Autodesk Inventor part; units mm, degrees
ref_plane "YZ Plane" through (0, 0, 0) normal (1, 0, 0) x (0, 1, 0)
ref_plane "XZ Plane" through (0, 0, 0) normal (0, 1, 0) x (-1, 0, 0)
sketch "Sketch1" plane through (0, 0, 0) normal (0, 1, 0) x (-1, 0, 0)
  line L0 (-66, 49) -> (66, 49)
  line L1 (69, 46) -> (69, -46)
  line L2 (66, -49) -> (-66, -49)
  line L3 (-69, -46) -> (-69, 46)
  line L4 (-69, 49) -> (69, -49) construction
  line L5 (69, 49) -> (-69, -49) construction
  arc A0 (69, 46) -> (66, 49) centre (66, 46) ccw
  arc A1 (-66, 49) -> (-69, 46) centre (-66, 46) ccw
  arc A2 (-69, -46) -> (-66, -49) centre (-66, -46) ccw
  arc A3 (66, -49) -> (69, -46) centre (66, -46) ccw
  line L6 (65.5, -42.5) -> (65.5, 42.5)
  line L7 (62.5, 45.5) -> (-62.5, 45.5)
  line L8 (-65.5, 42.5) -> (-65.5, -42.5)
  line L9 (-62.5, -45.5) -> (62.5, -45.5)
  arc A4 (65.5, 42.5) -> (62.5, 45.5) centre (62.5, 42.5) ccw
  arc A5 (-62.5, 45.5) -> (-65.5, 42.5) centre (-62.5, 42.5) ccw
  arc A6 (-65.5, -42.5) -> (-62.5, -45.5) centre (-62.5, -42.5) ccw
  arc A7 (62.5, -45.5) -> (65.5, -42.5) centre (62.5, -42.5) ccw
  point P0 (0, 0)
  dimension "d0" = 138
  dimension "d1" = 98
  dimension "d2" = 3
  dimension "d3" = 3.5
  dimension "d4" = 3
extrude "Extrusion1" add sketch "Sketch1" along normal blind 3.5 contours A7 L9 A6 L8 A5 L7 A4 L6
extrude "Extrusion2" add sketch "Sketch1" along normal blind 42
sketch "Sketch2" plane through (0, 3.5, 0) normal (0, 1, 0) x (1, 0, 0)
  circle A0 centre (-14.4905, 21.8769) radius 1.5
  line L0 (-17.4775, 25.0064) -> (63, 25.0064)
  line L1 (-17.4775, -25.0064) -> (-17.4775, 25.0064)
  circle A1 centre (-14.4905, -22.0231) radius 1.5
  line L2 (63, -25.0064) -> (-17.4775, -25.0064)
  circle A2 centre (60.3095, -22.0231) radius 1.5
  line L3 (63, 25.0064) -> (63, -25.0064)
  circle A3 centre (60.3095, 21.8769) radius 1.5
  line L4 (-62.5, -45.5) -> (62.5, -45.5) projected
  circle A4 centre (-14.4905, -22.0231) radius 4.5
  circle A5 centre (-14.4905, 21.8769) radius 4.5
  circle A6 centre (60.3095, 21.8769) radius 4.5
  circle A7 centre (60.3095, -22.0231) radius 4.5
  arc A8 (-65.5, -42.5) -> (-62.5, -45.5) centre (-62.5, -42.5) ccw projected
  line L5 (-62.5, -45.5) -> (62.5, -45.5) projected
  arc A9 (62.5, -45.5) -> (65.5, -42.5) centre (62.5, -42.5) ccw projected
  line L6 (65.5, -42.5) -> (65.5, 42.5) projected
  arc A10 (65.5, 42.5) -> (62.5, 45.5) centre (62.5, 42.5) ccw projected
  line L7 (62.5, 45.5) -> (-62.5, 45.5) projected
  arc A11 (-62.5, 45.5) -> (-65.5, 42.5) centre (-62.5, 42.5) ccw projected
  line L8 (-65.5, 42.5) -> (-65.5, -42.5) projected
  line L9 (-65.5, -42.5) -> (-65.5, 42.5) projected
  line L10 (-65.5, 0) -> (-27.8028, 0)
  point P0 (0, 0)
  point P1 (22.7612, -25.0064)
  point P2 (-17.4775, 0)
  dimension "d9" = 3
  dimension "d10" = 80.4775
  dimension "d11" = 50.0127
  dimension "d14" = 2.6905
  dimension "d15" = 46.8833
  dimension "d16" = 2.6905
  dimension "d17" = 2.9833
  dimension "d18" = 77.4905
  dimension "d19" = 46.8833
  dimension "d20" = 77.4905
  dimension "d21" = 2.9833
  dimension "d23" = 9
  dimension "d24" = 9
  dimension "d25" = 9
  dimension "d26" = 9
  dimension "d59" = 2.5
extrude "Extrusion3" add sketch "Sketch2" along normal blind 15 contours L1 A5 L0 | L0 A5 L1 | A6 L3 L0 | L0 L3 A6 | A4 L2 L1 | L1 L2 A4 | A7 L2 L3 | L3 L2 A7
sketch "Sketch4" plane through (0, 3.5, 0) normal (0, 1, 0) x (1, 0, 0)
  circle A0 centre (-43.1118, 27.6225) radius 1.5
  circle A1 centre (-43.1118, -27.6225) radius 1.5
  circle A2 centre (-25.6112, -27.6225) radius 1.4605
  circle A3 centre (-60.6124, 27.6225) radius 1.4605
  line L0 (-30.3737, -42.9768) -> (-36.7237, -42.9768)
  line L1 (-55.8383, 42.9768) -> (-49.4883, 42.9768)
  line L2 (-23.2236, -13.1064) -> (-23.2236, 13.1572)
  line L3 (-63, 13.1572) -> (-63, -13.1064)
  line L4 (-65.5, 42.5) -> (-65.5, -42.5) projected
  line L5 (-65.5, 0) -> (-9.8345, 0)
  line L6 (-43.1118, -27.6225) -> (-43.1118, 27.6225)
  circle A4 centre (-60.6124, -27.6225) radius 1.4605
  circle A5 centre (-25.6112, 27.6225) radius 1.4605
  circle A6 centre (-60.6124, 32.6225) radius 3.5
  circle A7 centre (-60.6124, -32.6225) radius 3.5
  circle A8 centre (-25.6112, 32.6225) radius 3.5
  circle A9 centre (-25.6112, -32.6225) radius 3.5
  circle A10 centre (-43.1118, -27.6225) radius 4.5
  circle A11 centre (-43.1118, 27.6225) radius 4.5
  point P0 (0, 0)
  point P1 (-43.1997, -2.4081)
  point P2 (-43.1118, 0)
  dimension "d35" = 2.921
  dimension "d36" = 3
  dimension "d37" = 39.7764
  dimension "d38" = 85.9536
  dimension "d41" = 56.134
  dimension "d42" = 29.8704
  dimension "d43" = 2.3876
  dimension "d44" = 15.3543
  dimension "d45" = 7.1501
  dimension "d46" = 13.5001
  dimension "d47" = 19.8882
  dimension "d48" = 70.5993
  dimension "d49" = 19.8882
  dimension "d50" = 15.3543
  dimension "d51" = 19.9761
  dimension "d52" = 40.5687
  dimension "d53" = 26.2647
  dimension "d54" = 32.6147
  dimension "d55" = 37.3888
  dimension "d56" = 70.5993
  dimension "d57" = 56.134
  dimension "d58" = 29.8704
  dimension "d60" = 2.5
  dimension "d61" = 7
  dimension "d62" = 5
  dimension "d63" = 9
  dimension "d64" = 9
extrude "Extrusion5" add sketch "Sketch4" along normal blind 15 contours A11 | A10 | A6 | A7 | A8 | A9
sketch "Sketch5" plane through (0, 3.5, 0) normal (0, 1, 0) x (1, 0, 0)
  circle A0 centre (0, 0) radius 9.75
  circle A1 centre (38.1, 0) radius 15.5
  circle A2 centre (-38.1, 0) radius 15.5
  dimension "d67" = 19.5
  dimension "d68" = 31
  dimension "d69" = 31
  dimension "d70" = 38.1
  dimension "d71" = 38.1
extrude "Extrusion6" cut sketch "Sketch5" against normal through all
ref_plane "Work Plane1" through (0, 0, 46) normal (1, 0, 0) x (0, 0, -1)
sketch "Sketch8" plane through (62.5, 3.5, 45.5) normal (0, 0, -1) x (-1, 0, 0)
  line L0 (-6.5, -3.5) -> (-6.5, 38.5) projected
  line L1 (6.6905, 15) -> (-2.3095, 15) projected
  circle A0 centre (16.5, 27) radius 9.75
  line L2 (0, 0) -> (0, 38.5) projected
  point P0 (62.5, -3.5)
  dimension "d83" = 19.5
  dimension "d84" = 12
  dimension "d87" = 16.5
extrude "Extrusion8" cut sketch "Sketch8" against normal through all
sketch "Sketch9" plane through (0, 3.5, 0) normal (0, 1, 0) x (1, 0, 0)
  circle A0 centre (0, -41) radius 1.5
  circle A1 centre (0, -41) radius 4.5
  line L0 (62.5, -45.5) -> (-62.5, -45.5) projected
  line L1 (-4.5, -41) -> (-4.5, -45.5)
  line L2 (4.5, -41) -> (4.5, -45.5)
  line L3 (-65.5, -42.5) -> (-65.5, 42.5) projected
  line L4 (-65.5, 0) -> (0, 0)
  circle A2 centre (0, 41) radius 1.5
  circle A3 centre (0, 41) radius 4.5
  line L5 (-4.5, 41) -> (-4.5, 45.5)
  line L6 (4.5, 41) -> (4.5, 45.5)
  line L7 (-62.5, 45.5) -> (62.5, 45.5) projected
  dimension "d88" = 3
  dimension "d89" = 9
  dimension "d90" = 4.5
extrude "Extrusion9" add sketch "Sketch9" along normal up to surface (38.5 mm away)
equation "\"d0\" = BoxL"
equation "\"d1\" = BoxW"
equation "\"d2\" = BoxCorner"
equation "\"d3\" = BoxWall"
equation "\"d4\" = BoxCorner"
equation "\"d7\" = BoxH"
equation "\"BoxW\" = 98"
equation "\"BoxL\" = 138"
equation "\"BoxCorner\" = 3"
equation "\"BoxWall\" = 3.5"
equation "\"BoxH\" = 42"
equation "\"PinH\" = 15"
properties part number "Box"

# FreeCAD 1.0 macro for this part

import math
import FreeCAD as App
import Part
import Sketcher
from FreeCAD import Vector

doc = App.newDocument("Part")
body = doc.addObject("PartDesign::Body", "Body")

sketch1 = doc.addObject("Sketcher::SketchObject", "Sketch")
body.addObject(sketch1)
sketch1.AttachmentSupport = (doc.XZ_Plane, [""])
sketch1.MapMode = "FlatFace"
sketch1.addGeometry(Part.ArcOfCircle(Part.Circle(Vector(-62.5, -42.5, 0), Vector(0, 0, 1), 3), math.radians(180), math.radians(270)), False)
sketch1.addGeometry(Part.LineSegment(Vector(-65.5, -42.5, 0), Vector(-65.5, 42.5, 0)), False)
sketch1.addGeometry(Part.ArcOfCircle(Part.Circle(Vector(-62.5, 42.5, 0), Vector(0, 0, 1), 3), math.radians(90), math.radians(180)), False)
sketch1.addGeometry(Part.LineSegment(Vector(-62.5, 45.5, 0), Vector(62.5, 45.5, 0)), False)
sketch1.addGeometry(Part.ArcOfCircle(Part.Circle(Vector(62.5, 42.5, 0), Vector(0, 0, 1), 3), math.radians(0), math.radians(90)), False)
sketch1.addGeometry(Part.LineSegment(Vector(65.5, 42.5, 0), Vector(65.5, -42.5, 0)), False)
sketch1.addGeometry(Part.ArcOfCircle(Part.Circle(Vector(62.5, -42.5, 0), Vector(0, 0, 1), 3), math.radians(-90), math.radians(0)), False)
sketch1.addGeometry(Part.LineSegment(Vector(62.5, -45.5, 0), Vector(-62.5, -45.5, 0)), False)
sketch1.addConstraint(Sketcher.Constraint("Tangent", 0, 1, 1, 1))
sketch1.addConstraint(Sketcher.Constraint("Tangent", 1, 2, 2, 2))
sketch1.addConstraint(Sketcher.Constraint("Tangent", 2, 1, 3, 1))
sketch1.addConstraint(Sketcher.Constraint("Tangent", 3, 2, 4, 2))
sketch1.addConstraint(Sketcher.Constraint("Tangent", 4, 1, 5, 1))
sketch1.addConstraint(Sketcher.Constraint("Tangent", 5, 2, 6, 2))
sketch1.addConstraint(Sketcher.Constraint("Tangent", 6, 1, 7, 1))
sketch1.addConstraint(Sketcher.Constraint("Tangent", 7, 2, 0, 2))
sketch1.addConstraint(Sketcher.Constraint("Vertical", 1))
sketch1.addConstraint(Sketcher.Constraint("Horizontal", 3))
sketch1.addConstraint(Sketcher.Constraint("Vertical", 5))
sketch1.addConstraint(Sketcher.Constraint("Horizontal", 7))
sketch1.addConstraint(Sketcher.Constraint("Equal", 0, 2))
sketch1.addConstraint(Sketcher.Constraint("Equal", 2, 4))
sketch1.addConstraint(Sketcher.Constraint("Equal", 4, 6))
sketch1.addConstraint(Sketcher.Constraint("Symmetric", 0, 3, 4, 3, -1, 1))
sketch1.addConstraint(Sketcher.Constraint("Radius", 0, 3.0))
sketch1.addConstraint(Sketcher.Constraint("DistanceX", 3, 1, 3, 2, 125.0))
sketch1.addConstraint(Sketcher.Constraint("DistanceY", 1, 1, 1, 2, 85.0))
pad1 = doc.addObject("PartDesign::Pad", "Pad")
body.addObject(pad1)
pad1.Profile = sketch1
pad1.Length = 3.5
pad1.Reversed = True

sketch2 = doc.addObject("Sketcher::SketchObject", "Sketch001")
body.addObject(sketch2)
sketch2.AttachmentSupport = (doc.XZ_Plane, [""])
sketch2.MapMode = "FlatFace"
sketch2.addGeometry(Part.LineSegment(Vector(-66, 49, 0), Vector(66, 49, 0)), False)
sketch2.addGeometry(Part.ArcOfCircle(Part.Circle(Vector(66, 46, 0), Vector(0, 0, 1), 3), math.radians(0), math.radians(90)), False)
sketch2.addGeometry(Part.LineSegment(Vector(69, 46, 0), Vector(69, -46, 0)), False)
sketch2.addGeometry(Part.ArcOfCircle(Part.Circle(Vector(66, -46, 0), Vector(0, 0, 1), 3), math.radians(-90), math.radians(0)), False)
sketch2.addGeometry(Part.LineSegment(Vector(66, -49, 0), Vector(-66, -49, 0)), False)
sketch2.addGeometry(Part.ArcOfCircle(Part.Circle(Vector(-66, -46, 0), Vector(0, 0, 1), 3), math.radians(180), math.radians(270)), False)
sketch2.addGeometry(Part.LineSegment(Vector(-69, -46, 0), Vector(-69, 46, 0)), False)
sketch2.addGeometry(Part.ArcOfCircle(Part.Circle(Vector(-66, 46, 0), Vector(0, 0, 1), 3), math.radians(90), math.radians(180)), False)
sketch2.addGeometry(Part.LineSegment(Vector(-65.5, 42.5, 0), Vector(-65.5, -42.5, 0)), False)
sketch2.addGeometry(Part.ArcOfCircle(Part.Circle(Vector(-62.5, -42.5, 0), Vector(0, 0, 1), 3), math.radians(180), math.radians(270)), False)
sketch2.addGeometry(Part.LineSegment(Vector(-62.5, -45.5, 0), Vector(62.5, -45.5, 0)), False)
sketch2.addGeometry(Part.ArcOfCircle(Part.Circle(Vector(62.5, -42.5, 0), Vector(0, 0, 1), 3), math.radians(-90), math.radians(0)), False)
sketch2.addGeometry(Part.LineSegment(Vector(65.5, -42.5, 0), Vector(65.5, 42.5, 0)), False)
sketch2.addGeometry(Part.ArcOfCircle(Part.Circle(Vector(62.5, 42.5, 0), Vector(0, 0, 1), 3), math.radians(0), math.radians(90)), False)
sketch2.addGeometry(Part.LineSegment(Vector(62.5, 45.5, 0), Vector(-62.5, 45.5, 0)), False)
sketch2.addGeometry(Part.ArcOfCircle(Part.Circle(Vector(-62.5, 42.5, 0), Vector(0, 0, 1), 3), math.radians(90), math.radians(180)), False)
sketch2.addConstraint(Sketcher.Constraint("Tangent", 0, 2, 1, 2))
sketch2.addConstraint(Sketcher.Constraint("Tangent", 1, 1, 2, 1))
sketch2.addConstraint(Sketcher.Constraint("Tangent", 2, 2, 3, 2))
sketch2.addConstraint(Sketcher.Constraint("Tangent", 3, 1, 4, 1))
sketch2.addConstraint(Sketcher.Constraint("Tangent", 4, 2, 5, 2))
sketch2.addConstraint(Sketcher.Constraint("Tangent", 5, 1, 6, 1))
sketch2.addConstraint(Sketcher.Constraint("Tangent", 6, 2, 7, 2))
sketch2.addConstraint(Sketcher.Constraint("Tangent", 7, 1, 0, 1))
sketch2.addConstraint(Sketcher.Constraint("Tangent", 8, 2, 9, 1))
sketch2.addConstraint(Sketcher.Constraint("Tangent", 9, 2, 10, 1))
sketch2.addConstraint(Sketcher.Constraint("Tangent", 10, 2, 11, 1))
sketch2.addConstraint(Sketcher.Constraint("Tangent", 11, 2, 12, 1))
sketch2.addConstraint(Sketcher.Constraint("Tangent", 12, 2, 13, 1))
sketch2.addConstraint(Sketcher.Constraint("Tangent", 13, 2, 14, 1))
sketch2.addConstraint(Sketcher.Constraint("Tangent", 14, 2, 15, 1))
sketch2.addConstraint(Sketcher.Constraint("Tangent", 15, 2, 8, 1))
sketch2.addConstraint(Sketcher.Constraint("Horizontal", 0))
sketch2.addConstraint(Sketcher.Constraint("Vertical", 2))
sketch2.addConstraint(Sketcher.Constraint("Horizontal", 4))
sketch2.addConstraint(Sketcher.Constraint("Vertical", 6))
sketch2.addConstraint(Sketcher.Constraint("Vertical", 8))
sketch2.addConstraint(Sketcher.Constraint("Horizontal", 10))
sketch2.addConstraint(Sketcher.Constraint("Vertical", 12))
sketch2.addConstraint(Sketcher.Constraint("Horizontal", 14))
sketch2.addConstraint(Sketcher.Constraint("Equal", 1, 3))
sketch2.addConstraint(Sketcher.Constraint("Equal", 3, 5))
sketch2.addConstraint(Sketcher.Constraint("Equal", 5, 7))
sketch2.addConstraint(Sketcher.Constraint("Equal", 7, 9))
sketch2.addConstraint(Sketcher.Constraint("Equal", 9, 11))
sketch2.addConstraint(Sketcher.Constraint("Equal", 11, 13))
sketch2.addConstraint(Sketcher.Constraint("Equal", 13, 15))
sketch2.addConstraint(Sketcher.Constraint("Symmetric", 1, 3, 5, 3, -1, 1))
sketch2.addConstraint(Sketcher.Constraint("Symmetric", 9, 3, 13, 3, -1, 1))
sketch2.addConstraint(Sketcher.Constraint("Radius", 1, 3.0))
sketch2.addConstraint(Sketcher.Constraint("DistanceX", 5, 3, 9, 3, 3.5))
sketch2.addConstraint(Sketcher.Constraint("DistanceY", 5, 3, 9, 3, 3.5))
sketch2.addConstraint(Sketcher.Constraint("DistanceX", 0, 1, 0, 2, 132.0))
sketch2.addConstraint(Sketcher.Constraint("DistanceY", 2, 2, 2, 1, 92.0))
pad2 = doc.addObject("PartDesign::Pad", "Pad001")
body.addObject(pad2)
pad2.Profile = sketch2
pad2.Length = 42
pad2.Reversed = True

sketch3 = doc.addObject("Sketcher::SketchObject", "Sketch002")
body.addObject(sketch3)
sketch3.AttachmentSupport = (doc.XZ_Plane, [""])
sketch3.MapMode = "FlatFace"
sketch3.AttachmentOffset = App.Placement(Vector(0, 0, -3.5), App.Rotation())
sketch3.addGeometry(Part.Circle(Vector(-14.4905, -21.8769, 0), Vector(0, 0, 1), 4.5), False)
sketch3.addGeometry(Part.Circle(Vector(-14.4905, -21.8769, 0), Vector(0, 0, 1), 1.5), False)
sketch3.addGeometry(Part.Circle(Vector(60.3095, -21.8769, 0), Vector(0, 0, 1), 4.5), False)
sketch3.addGeometry(Part.Circle(Vector(60.3095, -21.8769, 0), Vector(0, 0, 1), 1.5), False)
sketch3.addGeometry(Part.Circle(Vector(-14.4905, 22.0231, 0), Vector(0, 0, 1), 4.5), False)
sketch3.addGeometry(Part.Circle(Vector(-14.4905, 22.0231, 0), Vector(0, 0, 1), 1.5), False)
sketch3.addGeometry(Part.Circle(Vector(60.3095, 22.0231, 0), Vector(0, 0, 1), 4.5), False)
sketch3.addGeometry(Part.Circle(Vector(60.3095, 22.0231, 0), Vector(0, 0, 1), 1.5), False)
sketch3.addConstraint(Sketcher.Constraint("Coincident", 1, 3, 0, 3))
sketch3.addConstraint(Sketcher.Constraint("Coincident", 3, 3, 2, 3))
sketch3.addConstraint(Sketcher.Constraint("Coincident", 5, 3, 4, 3))
sketch3.addConstraint(Sketcher.Constraint("Coincident", 7, 3, 6, 3))
sketch3.addConstraint(Sketcher.Constraint("Equal", 0, 2))
sketch3.addConstraint(Sketcher.Constraint("Equal", 1, 3))
sketch3.addConstraint(Sketcher.Constraint("Equal", 2, 4))
sketch3.addConstraint(Sketcher.Constraint("Equal", 3, 5))
sketch3.addConstraint(Sketcher.Constraint("Equal", 4, 6))
sketch3.addConstraint(Sketcher.Constraint("Equal", 5, 7))
sketch3.addConstraint(Sketcher.Constraint("Horizontal", 1, 3, 2, 3))
sketch3.addConstraint(Sketcher.Constraint("Horizontal", 5, 3, 6, 3))
sketch3.addConstraint(Sketcher.Constraint("Vertical", 1, 3, 4, 3))
sketch3.addConstraint(Sketcher.Constraint("Vertical", 3, 3, 6, 3))
sketch3.addConstraint(Sketcher.Constraint("Diameter", 0, 9.0))
sketch3.addConstraint(Sketcher.Constraint("Diameter", 1, 3.0))
sketch3.addConstraint(Sketcher.Constraint("DistanceX", 0, 3, 2, 3, 74.8))
sketch3.addConstraint(Sketcher.Constraint("DistanceY", 0, 3, 4, 3, 43.9))
sketch3.addConstraint(Sketcher.Constraint("DistanceY", 0, 3, -1, 1, 21.877))
sketch3.addConstraint(Sketcher.Constraint("DistanceX", 0, 3, -1, 1, 14.4905))
pad3 = doc.addObject("PartDesign::Pad", "Pad002")
body.addObject(pad3)
pad3.Profile = sketch3
pad3.Length = 15
pad3.Reversed = True

sketch4 = doc.addObject("Sketcher::SketchObject", "Sketch003")
body.addObject(sketch4)
sketch4.AttachmentSupport = (doc.XZ_Plane, [""])
sketch4.MapMode = "FlatFace"
sketch4.AttachmentOffset = App.Placement(Vector(0, 0, -3.5), App.Rotation())
sketch4.addGeometry(Part.Circle(Vector(-43.1118, -27.6225, 0), Vector(0, 0, 1), 4.5), False)
sketch4.addGeometry(Part.Circle(Vector(-43.1118, -27.6225, 0), Vector(0, 0, 1), 1.5), False)
sketch4.addGeometry(Part.Circle(Vector(-43.1118, 27.6225, 0), Vector(0, 0, 1), 4.5), False)
sketch4.addGeometry(Part.Circle(Vector(-43.1118, 27.6225, 0), Vector(0, 0, 1), 1.5), False)
sketch4.addGeometry(Part.Circle(Vector(-60.6124, -32.6225, 0), Vector(0, 0, 1), 3.5), False)
sketch4.addGeometry(Part.Circle(Vector(-60.6124, 32.6225, 0), Vector(0, 0, 1), 3.5), False)
sketch4.addGeometry(Part.Circle(Vector(-25.6112, -32.6225, 0), Vector(0, 0, 1), 3.5), False)
sketch4.addGeometry(Part.Circle(Vector(-25.6112, 32.6225, 0), Vector(0, 0, 1), 3.5), False)
sketch4.addConstraint(Sketcher.Constraint("Coincident", 1, 3, 0, 3))
sketch4.addConstraint(Sketcher.Constraint("Coincident", 3, 3, 2, 3))
sketch4.addConstraint(Sketcher.Constraint("Equal", 0, 2))
sketch4.addConstraint(Sketcher.Constraint("Equal", 1, 3))
sketch4.addConstraint(Sketcher.Constraint("Equal", 4, 5))
sketch4.addConstraint(Sketcher.Constraint("Equal", 5, 6))
sketch4.addConstraint(Sketcher.Constraint("Equal", 6, 7))
sketch4.addConstraint(Sketcher.Constraint("Symmetric", 0, 3, 2, 3, -1))
sketch4.addConstraint(Sketcher.Constraint("Symmetric", 4, 3, 5, 3, -1))
sketch4.addConstraint(Sketcher.Constraint("Symmetric", 6, 3, 7, 3, -1))
sketch4.addConstraint(Sketcher.Constraint("Horizontal", 4, 3, 6, 3))
sketch4.addConstraint(Sketcher.Constraint("Diameter", 0, 9.0))
sketch4.addConstraint(Sketcher.Constraint("Diameter", 1, 3.0))
sketch4.addConstraint(Sketcher.Constraint("Diameter", 4, 7.0))
sketch4.addConstraint(Sketcher.Constraint("DistanceY", 4, 3, 0, 3, 5.0))
sketch4.addConstraint(Sketcher.Constraint("DistanceY", 0, 3, 2, 3, 55.245))
sketch4.addConstraint(Sketcher.Constraint("DistanceX", 0, 3, -1, 1, 43.1118))
sketch4.addConstraint(Sketcher.Constraint("DistanceX", 4, 3, -1, 1, 60.6124))
sketch4.addConstraint(Sketcher.Constraint("DistanceX", 6, 3, -1, 1, 25.6112))
pad4 = doc.addObject("PartDesign::Pad", "Pad003")
body.addObject(pad4)
pad4.Profile = sketch4
pad4.Length = 15
pad4.Reversed = True

sketch5 = doc.addObject("Sketcher::SketchObject", "Sketch004")
body.addObject(sketch5)
sketch5.AttachmentSupport = (doc.XZ_Plane, [""])
sketch5.MapMode = "FlatFace"
sketch5.AttachmentOffset = App.Placement(Vector(0, 0, -3.5), App.Rotation())
sketch5.addGeometry(Part.Circle(Vector(0, 0, 0), Vector(0, 0, 1), 9.75), False)
sketch5.addGeometry(Part.Circle(Vector(38.1, 0, 0), Vector(0, 0, 1), 15.5), False)
sketch5.addGeometry(Part.Circle(Vector(-38.1, 0, 0), Vector(0, 0, 1), 15.5), False)
sketch5.addConstraint(Sketcher.Constraint("Coincident", 0, 3, -1, 1))
sketch5.addConstraint(Sketcher.Constraint("Equal", 1, 2))
sketch5.addConstraint(Sketcher.Constraint("Symmetric", 1, 3, 2, 3, -1, 1))
sketch5.addConstraint(Sketcher.Constraint("PointOnObject", 1, 3, -1))
sketch5.addConstraint(Sketcher.Constraint("Diameter", 1, 31.0))
sketch5.addConstraint(Sketcher.Constraint("Diameter", 0, 19.5))
sketch5.addConstraint(Sketcher.Constraint("DistanceX", -1, 1, 1, 3, 38.1))
pocket1 = doc.addObject("PartDesign::Pocket", "Pocket")
body.addObject(pocket1)
pocket1.Profile = sketch5
pocket1.Type = "ThroughAll"
pocket1.Reversed = True

sketch6 = doc.addObject("Sketcher::SketchObject", "Sketch005")
body.addObject(sketch6)
sketch6.AttachmentSupport = (doc.XY_Plane, [""])
sketch6.MapMode = "FlatFace"
sketch6.AttachmentOffset = App.Placement(Vector(0, 0, 45.5), App.Rotation())
sketch6.addGeometry(Part.Circle(Vector(46, 30.5, 0), Vector(0, 0, 1), 9.75), False)
sketch6.addConstraint(Sketcher.Constraint("Diameter", 0, 19.5))
sketch6.addConstraint(Sketcher.Constraint("DistanceX", -1, 1, 0, 3, 46.0))
sketch6.addConstraint(Sketcher.Constraint("DistanceY", -1, 1, 0, 3, 30.5))
pocket2 = doc.addObject("PartDesign::Pocket", "Pocket001")
body.addObject(pocket2)
pocket2.Profile = sketch6
pocket2.Type = "ThroughAll"
pocket2.Reversed = True

sketch7 = doc.addObject("Sketcher::SketchObject", "Sketch006")
body.addObject(sketch7)
sketch7.AttachmentSupport = (doc.XZ_Plane, [""])
sketch7.MapMode = "FlatFace"
sketch7.AttachmentOffset = App.Placement(Vector(0, 0, -3.5), App.Rotation())
sketch7.addGeometry(Part.ArcOfCircle(Part.Circle(Vector(0, 41, 0), Vector(0, 0, 1), 4.5), math.radians(180), math.radians(360)), False)
sketch7.addGeometry(Part.LineSegment(Vector(-4.5, 41, 0), Vector(-4.5, 45.5, 0)), False)
sketch7.addGeometry(Part.LineSegment(Vector(-4.5, 45.5, 0), Vector(4.5, 45.5, 0)), False)
sketch7.addGeometry(Part.LineSegment(Vector(4.5, 45.5, 0), Vector(4.5, 41, 0)), False)
sketch7.addGeometry(Part.Circle(Vector(0, 41, 0), Vector(0, 0, 1), 1.5), False)
sketch7.addGeometry(Part.ArcOfCircle(Part.Circle(Vector(0, -41, 0), Vector(0, 0, 1), 4.5), math.radians(0), math.radians(180)), False)
sketch7.addGeometry(Part.LineSegment(Vector(4.5, -41, 0), Vector(4.5, -45.5, 0)), False)
sketch7.addGeometry(Part.LineSegment(Vector(4.5, -45.5, 0), Vector(-4.5, -45.5, 0)), False)
sketch7.addGeometry(Part.LineSegment(Vector(-4.5, -45.5, 0), Vector(-4.5, -41, 0)), False)
sketch7.addGeometry(Part.Circle(Vector(0, -41, 0), Vector(0, 0, 1), 1.5), False)
sketch7.addConstraint(Sketcher.Constraint("Tangent", 0, 1, 1, 1))
sketch7.addConstraint(Sketcher.Constraint("Coincident", 1, 2, 2, 1))
sketch7.addConstraint(Sketcher.Constraint("Coincident", 2, 2, 3, 1))
sketch7.addConstraint(Sketcher.Constraint("Tangent", 3, 2, 0, 2))
sketch7.addConstraint(Sketcher.Constraint("Tangent", 5, 1, 6, 1))
sketch7.addConstraint(Sketcher.Constraint("Coincident", 6, 2, 7, 1))
sketch7.addConstraint(Sketcher.Constraint("Coincident", 7, 2, 8, 1))
sketch7.addConstraint(Sketcher.Constraint("Tangent", 8, 2, 5, 2))
sketch7.addConstraint(Sketcher.Constraint("Vertical", 1))
sketch7.addConstraint(Sketcher.Constraint("Horizontal", 2))
sketch7.addConstraint(Sketcher.Constraint("Vertical", 3))
sketch7.addConstraint(Sketcher.Constraint("Vertical", 6))
sketch7.addConstraint(Sketcher.Constraint("Horizontal", 7))
sketch7.addConstraint(Sketcher.Constraint("Vertical", 8))
sketch7.addConstraint(Sketcher.Constraint("Coincident", 4, 3, 0, 3))
sketch7.addConstraint(Sketcher.Constraint("Coincident", 9, 3, 5, 3))
sketch7.addConstraint(Sketcher.Constraint("Equal", 0, 5))
sketch7.addConstraint(Sketcher.Constraint("Equal", 4, 9))
sketch7.addConstraint(Sketcher.Constraint("Symmetric", 0, 3, 5, 3, -1, 1))
sketch7.addConstraint(Sketcher.Constraint("Symmetric", 2, 2, 6, 2, -1))
sketch7.addConstraint(Sketcher.Constraint("Diameter", 4, 3.0))
sketch7.addConstraint(Sketcher.Constraint("Radius", 0, 4.5))
sketch7.addConstraint(Sketcher.Constraint("DistanceY", 1, 1, 1, 2, 4.5))
sketch7.addConstraint(Sketcher.Constraint("DistanceY", -1, 1, 0, 3, 41.0))
pad5 = doc.addObject("PartDesign::Pad", "Pad004")
body.addObject(pad5)
pad5.Profile = sketch7
pad5.Length = 38.5
pad5.Reversed = True

doc.recompute()
